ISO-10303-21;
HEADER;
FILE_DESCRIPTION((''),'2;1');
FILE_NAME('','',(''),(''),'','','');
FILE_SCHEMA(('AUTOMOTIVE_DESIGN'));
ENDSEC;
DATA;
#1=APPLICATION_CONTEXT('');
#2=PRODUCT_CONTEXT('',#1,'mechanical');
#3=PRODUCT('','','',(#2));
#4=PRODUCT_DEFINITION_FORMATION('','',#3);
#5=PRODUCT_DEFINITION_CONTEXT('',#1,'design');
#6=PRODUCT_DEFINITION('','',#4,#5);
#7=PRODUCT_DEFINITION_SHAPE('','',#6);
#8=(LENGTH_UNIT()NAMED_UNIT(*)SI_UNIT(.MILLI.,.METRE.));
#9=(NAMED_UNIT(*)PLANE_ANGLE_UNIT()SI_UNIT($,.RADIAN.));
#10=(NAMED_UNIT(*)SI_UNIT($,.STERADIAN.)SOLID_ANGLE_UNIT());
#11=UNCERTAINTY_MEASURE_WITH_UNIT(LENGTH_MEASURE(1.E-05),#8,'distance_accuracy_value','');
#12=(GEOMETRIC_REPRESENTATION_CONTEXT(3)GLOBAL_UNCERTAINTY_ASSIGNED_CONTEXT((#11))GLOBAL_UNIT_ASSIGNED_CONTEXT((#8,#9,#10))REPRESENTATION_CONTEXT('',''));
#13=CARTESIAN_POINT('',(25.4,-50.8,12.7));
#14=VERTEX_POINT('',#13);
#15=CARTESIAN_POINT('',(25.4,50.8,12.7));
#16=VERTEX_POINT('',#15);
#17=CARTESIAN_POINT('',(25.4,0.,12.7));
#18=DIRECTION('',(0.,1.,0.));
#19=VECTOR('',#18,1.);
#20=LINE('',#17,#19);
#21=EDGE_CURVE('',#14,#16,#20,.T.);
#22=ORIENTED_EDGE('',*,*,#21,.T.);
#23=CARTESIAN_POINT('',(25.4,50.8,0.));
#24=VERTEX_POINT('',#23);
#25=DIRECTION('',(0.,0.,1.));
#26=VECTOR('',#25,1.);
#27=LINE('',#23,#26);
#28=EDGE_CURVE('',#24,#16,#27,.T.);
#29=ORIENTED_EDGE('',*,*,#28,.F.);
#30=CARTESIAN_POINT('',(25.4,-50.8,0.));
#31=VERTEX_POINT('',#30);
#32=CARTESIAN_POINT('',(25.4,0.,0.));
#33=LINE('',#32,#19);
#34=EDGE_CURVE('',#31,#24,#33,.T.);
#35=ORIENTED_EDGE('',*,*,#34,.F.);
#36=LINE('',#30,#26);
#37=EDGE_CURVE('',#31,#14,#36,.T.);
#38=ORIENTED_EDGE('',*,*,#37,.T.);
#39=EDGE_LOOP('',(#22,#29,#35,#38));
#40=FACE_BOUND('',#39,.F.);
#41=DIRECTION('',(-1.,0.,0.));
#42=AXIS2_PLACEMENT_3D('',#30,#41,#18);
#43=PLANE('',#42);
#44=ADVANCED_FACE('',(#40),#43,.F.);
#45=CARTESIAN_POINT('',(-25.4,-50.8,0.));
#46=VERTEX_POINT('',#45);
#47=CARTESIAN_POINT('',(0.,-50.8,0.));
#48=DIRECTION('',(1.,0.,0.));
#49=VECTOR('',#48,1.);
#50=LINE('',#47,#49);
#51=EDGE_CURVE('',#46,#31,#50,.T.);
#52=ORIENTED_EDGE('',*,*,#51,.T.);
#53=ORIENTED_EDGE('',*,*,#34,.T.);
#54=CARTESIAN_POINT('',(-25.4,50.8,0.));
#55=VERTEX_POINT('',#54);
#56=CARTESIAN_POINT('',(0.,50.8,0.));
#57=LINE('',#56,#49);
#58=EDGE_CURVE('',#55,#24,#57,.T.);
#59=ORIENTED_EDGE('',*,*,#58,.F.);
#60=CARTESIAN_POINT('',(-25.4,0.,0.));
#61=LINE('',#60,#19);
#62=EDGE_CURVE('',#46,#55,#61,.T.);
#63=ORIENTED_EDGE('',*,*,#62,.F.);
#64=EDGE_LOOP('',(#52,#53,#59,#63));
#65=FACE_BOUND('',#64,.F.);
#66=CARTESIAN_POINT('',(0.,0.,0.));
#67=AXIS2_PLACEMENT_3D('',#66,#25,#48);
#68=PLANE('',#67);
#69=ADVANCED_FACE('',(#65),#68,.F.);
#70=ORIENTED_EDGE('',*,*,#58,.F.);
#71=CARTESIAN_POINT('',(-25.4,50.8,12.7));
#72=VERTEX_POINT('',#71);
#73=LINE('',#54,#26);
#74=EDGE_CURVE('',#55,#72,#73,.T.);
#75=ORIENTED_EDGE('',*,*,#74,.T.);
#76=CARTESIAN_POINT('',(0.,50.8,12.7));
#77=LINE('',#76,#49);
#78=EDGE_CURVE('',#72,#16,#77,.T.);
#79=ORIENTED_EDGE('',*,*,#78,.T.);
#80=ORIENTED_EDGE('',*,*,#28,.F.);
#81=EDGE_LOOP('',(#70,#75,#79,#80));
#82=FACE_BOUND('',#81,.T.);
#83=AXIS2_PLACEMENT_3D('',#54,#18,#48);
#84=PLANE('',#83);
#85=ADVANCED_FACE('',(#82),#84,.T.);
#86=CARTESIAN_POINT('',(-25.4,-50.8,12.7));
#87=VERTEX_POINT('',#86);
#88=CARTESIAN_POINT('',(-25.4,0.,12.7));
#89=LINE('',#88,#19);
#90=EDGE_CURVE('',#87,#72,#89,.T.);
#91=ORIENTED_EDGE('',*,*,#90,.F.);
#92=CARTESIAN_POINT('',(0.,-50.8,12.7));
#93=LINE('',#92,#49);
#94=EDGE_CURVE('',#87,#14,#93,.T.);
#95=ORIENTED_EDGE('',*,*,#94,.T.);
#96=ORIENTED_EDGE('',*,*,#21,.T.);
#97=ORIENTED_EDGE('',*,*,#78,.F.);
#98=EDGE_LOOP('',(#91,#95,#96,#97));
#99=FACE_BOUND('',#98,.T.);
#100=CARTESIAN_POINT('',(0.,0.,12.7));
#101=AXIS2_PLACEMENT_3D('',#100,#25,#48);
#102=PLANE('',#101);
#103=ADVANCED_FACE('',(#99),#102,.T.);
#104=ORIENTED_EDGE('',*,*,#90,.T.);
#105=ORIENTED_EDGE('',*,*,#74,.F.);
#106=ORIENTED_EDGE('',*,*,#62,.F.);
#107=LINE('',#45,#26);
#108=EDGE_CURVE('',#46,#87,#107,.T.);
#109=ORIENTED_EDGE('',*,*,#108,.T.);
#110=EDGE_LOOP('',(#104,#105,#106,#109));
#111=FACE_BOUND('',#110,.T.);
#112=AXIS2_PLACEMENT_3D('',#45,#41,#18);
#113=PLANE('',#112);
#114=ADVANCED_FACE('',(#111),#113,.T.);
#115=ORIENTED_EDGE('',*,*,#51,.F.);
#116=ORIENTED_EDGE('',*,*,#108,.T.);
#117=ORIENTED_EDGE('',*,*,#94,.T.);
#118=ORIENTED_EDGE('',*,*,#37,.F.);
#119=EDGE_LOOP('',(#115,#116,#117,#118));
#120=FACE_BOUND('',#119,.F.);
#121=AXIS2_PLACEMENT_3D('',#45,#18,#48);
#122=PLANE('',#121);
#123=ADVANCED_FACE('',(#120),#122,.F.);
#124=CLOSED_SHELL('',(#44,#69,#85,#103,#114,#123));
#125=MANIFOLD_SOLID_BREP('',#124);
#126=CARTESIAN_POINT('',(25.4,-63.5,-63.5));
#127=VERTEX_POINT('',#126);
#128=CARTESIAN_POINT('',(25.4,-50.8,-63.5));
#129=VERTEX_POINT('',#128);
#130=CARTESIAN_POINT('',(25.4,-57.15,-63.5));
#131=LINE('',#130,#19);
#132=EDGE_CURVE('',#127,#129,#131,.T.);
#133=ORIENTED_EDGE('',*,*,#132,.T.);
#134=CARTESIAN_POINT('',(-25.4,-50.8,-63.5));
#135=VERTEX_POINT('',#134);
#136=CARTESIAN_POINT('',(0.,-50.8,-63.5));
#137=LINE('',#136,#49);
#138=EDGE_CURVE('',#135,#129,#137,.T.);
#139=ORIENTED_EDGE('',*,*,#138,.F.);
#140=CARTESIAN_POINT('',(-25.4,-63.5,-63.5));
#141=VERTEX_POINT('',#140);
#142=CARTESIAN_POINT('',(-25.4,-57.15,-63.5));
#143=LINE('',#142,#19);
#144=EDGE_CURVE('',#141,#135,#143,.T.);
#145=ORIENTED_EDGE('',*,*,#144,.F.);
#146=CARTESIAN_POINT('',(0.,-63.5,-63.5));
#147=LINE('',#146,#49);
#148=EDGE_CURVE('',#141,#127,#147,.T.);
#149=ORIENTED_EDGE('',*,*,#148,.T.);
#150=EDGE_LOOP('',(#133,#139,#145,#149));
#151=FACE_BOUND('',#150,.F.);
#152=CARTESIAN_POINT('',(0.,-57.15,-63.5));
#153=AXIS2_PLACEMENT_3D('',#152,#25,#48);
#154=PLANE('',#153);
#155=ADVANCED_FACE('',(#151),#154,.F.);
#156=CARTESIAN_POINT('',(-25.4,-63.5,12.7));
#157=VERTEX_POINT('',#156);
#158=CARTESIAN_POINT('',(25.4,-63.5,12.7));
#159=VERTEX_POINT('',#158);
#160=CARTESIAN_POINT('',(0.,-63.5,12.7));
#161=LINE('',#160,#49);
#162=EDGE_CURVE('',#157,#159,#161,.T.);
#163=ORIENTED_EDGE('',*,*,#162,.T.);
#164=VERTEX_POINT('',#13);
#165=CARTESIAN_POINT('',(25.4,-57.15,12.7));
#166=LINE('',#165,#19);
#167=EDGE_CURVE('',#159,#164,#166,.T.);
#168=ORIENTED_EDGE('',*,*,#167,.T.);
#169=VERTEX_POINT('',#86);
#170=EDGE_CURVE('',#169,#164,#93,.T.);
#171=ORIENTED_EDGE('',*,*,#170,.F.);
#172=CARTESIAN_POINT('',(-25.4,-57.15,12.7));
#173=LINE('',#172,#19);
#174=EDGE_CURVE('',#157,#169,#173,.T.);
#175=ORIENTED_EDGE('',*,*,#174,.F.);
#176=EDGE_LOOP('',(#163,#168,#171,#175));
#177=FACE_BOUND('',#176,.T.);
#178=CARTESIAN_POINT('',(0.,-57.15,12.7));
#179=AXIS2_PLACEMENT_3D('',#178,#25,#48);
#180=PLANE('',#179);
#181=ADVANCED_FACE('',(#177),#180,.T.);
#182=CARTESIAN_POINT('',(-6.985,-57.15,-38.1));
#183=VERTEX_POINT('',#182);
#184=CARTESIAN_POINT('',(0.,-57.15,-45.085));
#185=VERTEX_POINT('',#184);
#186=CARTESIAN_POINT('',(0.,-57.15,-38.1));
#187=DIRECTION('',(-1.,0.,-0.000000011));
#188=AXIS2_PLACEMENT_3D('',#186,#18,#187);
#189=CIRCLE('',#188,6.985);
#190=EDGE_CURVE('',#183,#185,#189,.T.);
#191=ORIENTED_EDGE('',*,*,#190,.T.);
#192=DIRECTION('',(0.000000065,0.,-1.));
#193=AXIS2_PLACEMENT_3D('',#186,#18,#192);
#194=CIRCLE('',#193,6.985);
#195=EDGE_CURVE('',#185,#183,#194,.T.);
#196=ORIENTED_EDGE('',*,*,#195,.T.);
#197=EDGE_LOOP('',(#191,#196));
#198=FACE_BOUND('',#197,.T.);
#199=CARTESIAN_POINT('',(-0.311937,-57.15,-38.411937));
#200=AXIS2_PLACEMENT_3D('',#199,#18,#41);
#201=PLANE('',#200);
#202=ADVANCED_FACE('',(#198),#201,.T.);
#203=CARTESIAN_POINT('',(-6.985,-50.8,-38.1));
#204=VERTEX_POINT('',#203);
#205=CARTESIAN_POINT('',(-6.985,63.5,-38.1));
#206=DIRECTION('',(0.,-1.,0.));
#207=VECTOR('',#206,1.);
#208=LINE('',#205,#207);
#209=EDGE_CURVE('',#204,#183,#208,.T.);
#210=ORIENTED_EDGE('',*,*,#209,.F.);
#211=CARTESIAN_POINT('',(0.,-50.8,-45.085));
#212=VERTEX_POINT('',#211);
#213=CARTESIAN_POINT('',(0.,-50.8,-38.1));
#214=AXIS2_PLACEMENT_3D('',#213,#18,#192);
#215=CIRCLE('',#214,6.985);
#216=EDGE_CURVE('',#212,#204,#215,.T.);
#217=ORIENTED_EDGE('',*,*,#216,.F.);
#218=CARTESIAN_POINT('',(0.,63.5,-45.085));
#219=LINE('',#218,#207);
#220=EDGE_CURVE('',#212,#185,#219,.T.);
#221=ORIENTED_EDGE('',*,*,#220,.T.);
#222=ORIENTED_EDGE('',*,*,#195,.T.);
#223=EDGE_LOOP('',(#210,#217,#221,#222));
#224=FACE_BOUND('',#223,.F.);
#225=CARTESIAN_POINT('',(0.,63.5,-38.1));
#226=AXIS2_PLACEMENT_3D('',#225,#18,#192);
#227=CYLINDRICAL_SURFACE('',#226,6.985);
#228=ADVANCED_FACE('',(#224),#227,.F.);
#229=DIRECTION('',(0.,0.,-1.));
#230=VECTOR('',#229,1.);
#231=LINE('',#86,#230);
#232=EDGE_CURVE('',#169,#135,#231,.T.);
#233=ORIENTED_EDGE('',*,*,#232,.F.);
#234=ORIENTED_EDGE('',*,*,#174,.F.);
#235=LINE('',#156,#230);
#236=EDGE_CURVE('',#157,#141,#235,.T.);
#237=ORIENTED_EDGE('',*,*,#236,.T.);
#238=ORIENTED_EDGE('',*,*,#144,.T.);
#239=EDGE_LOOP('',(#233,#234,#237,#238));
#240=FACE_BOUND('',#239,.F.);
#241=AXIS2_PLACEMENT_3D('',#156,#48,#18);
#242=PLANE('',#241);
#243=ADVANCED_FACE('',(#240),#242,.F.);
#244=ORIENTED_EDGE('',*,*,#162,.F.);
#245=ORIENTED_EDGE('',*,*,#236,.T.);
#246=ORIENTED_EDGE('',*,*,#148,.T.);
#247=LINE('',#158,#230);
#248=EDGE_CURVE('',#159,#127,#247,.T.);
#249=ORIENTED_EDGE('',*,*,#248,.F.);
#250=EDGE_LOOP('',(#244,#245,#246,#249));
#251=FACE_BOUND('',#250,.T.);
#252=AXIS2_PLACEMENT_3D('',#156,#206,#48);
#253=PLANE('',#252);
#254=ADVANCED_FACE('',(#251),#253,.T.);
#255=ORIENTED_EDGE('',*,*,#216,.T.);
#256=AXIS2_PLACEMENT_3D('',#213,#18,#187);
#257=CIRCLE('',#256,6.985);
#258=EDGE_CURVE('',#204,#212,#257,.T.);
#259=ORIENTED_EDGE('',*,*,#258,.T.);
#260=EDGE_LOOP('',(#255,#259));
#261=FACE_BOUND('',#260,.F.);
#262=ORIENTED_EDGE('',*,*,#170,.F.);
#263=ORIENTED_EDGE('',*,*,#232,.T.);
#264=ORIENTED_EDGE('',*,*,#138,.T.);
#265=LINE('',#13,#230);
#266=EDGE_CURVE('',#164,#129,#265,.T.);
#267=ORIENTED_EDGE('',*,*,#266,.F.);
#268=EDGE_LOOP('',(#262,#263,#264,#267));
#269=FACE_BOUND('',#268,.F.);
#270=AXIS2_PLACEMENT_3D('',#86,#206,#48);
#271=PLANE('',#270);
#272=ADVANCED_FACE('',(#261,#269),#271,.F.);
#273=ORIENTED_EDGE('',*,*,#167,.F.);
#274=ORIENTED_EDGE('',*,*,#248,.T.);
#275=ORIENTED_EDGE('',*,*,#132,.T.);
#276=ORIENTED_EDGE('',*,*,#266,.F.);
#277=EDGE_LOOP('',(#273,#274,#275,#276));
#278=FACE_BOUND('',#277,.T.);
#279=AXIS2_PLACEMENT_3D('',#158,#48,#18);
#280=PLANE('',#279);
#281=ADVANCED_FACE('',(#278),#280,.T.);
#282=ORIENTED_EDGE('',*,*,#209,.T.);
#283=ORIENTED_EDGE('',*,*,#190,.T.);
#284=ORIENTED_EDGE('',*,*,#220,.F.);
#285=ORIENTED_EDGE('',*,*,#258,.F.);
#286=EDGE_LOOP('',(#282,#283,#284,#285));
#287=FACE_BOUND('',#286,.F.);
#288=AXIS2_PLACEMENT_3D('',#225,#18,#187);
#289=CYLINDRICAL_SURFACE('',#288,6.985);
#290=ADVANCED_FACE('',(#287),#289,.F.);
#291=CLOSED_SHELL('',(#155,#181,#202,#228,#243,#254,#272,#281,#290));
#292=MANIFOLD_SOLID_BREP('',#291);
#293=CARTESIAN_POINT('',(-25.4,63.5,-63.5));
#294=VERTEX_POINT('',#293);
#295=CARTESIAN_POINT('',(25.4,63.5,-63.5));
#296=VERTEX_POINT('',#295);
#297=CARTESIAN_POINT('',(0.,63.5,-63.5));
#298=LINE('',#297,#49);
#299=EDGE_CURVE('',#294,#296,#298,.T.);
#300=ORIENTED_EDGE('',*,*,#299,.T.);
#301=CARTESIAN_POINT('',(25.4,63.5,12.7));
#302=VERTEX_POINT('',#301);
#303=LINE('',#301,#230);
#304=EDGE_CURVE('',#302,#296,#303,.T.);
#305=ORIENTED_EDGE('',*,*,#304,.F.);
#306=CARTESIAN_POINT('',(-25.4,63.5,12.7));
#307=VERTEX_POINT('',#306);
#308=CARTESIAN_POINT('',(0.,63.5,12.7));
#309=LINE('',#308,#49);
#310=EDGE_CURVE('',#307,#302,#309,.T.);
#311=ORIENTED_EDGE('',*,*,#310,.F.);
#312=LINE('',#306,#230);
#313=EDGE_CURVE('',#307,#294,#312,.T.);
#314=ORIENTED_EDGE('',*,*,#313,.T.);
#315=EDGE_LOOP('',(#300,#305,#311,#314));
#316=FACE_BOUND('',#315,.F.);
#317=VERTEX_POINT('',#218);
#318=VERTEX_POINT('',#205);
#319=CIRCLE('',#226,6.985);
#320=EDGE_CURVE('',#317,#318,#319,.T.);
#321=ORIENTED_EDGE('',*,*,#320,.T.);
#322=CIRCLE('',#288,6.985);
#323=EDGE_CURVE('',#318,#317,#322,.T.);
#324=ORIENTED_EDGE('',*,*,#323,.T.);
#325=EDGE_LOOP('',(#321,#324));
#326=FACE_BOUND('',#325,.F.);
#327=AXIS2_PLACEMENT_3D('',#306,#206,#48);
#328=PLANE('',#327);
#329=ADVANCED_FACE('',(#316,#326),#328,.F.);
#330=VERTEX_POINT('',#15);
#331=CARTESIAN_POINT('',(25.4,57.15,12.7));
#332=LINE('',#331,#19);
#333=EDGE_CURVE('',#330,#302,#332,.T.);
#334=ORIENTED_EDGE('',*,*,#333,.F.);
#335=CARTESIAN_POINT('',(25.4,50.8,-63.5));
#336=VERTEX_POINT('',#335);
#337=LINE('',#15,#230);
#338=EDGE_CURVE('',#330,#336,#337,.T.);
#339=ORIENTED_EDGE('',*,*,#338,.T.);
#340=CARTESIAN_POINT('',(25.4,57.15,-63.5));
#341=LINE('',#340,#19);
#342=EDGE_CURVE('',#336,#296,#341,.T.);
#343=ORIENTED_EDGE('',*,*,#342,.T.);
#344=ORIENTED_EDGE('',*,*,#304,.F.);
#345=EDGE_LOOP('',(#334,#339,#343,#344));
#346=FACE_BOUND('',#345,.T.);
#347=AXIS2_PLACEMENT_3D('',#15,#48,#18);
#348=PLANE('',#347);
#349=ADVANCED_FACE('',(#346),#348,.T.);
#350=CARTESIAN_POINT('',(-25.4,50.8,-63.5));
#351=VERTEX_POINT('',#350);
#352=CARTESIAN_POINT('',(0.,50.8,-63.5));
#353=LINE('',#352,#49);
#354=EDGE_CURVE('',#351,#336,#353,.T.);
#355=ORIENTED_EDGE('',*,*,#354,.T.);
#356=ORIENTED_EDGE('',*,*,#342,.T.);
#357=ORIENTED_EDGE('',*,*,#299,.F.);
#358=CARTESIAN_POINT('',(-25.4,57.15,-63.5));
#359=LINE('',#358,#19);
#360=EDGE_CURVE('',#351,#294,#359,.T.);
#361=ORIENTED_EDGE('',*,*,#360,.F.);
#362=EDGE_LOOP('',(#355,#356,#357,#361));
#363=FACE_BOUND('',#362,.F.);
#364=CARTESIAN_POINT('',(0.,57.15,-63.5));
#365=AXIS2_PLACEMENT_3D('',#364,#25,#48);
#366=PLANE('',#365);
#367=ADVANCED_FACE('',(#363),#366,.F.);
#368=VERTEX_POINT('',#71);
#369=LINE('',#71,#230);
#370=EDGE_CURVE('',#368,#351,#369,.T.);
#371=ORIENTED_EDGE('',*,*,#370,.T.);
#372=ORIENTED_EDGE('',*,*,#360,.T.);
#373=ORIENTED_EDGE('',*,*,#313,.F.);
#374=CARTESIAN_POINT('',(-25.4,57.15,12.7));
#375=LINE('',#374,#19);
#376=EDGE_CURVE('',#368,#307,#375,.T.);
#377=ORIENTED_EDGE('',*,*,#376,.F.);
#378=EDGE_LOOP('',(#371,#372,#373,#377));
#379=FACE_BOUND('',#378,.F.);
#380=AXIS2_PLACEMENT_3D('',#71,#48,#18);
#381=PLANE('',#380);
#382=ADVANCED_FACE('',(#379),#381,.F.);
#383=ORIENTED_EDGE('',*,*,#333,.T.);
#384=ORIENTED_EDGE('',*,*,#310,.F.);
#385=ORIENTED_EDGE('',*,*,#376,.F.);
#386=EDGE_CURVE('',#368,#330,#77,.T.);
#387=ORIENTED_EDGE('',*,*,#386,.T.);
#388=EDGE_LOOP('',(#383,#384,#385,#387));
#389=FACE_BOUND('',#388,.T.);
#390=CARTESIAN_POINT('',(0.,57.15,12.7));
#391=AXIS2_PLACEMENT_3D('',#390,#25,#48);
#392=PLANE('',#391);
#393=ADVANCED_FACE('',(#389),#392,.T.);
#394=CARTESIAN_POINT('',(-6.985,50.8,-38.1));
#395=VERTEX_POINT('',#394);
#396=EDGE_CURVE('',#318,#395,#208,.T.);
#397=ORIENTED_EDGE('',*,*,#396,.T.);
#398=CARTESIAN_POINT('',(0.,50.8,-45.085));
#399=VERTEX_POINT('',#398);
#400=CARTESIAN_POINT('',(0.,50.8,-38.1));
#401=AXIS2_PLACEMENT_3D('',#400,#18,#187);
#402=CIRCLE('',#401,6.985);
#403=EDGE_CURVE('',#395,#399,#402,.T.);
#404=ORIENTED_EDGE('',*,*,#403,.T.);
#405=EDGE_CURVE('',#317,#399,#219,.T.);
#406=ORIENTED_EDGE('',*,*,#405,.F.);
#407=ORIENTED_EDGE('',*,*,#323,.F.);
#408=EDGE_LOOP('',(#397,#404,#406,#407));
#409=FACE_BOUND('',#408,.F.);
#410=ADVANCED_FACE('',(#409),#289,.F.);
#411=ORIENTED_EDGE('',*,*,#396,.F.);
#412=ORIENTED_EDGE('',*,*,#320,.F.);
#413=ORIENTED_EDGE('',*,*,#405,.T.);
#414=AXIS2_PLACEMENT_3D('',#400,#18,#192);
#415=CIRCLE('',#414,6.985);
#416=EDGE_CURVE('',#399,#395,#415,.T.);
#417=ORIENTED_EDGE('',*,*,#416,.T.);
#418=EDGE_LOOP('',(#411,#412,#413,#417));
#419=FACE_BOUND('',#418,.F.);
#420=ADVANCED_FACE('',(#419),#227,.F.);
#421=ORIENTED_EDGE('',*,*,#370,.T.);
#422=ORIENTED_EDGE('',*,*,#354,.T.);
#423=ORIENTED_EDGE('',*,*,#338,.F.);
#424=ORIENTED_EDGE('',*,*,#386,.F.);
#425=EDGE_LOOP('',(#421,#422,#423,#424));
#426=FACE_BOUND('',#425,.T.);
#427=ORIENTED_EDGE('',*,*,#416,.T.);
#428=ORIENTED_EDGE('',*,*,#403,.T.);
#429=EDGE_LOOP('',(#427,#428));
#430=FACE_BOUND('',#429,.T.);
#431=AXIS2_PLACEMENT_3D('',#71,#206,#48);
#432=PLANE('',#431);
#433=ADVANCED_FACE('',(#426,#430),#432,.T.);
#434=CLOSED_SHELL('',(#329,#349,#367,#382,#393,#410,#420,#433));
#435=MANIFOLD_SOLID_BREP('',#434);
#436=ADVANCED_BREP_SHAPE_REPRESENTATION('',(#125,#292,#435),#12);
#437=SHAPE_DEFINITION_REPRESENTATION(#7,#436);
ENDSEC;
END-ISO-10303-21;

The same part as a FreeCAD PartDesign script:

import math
import FreeCAD as App
import Part
import Sketcher
from FreeCAD import Vector
Q = App.Units.Quantity

doc = App.newDocument("Part")
body = doc.addObject("PartDesign::Body", "Body")

# Sketch on XY plane
sketch1 = body.newObject("Sketcher::SketchObject", "Sketch")
sketch1.AttachmentSupport = (doc.getObject("XY_Plane"), [""])
sketch1.MapMode = "FlatFace"
sketch1.addGeometry(Part.LineSegment(Vector(-25, 51, 0), Vector(-25, -51, 0)), False)
sketch1.addGeometry(Part.LineSegment(Vector(-25, -51, 0), Vector(25, -51, 0)), False)
sketch1.addGeometry(Part.LineSegment(Vector(25, -51, 0), Vector(25, 51, 0)), False)
sketch1.addGeometry(Part.LineSegment(Vector(25, 51, 0), Vector(-25, 51, 0)), False)
sketch1.addConstraint(Sketcher.Constraint("Coincident", 0, 2, 1, 1))
sketch1.addConstraint(Sketcher.Constraint("Coincident", 1, 2, 2, 1))
sketch1.addConstraint(Sketcher.Constraint("Coincident", 2, 2, 3, 1))
sketch1.addConstraint(Sketcher.Constraint("Coincident", 3, 2, 0, 1))
sketch1.addConstraint(Sketcher.Constraint("Vertical", 0))
sketch1.addConstraint(Sketcher.Constraint("Horizontal", 1))
sketch1.addConstraint(Sketcher.Constraint("Vertical", 2))
sketch1.addConstraint(Sketcher.Constraint("Horizontal", 3))
sketch1.addConstraint(Sketcher.Constraint("Symmetric", 0, 2, 2, 2, -1, 1))
sketch1.addConstraint(Sketcher.Constraint("DistanceX", 1, 1, 1, 2, Q("2 in")))
sketch1.addConstraint(Sketcher.Constraint("DistanceY", 0, 2, 0, 1, Q("4 in")))
pad1 = body.newObject("PartDesign::Pad", "Pad")
pad1.Profile = sketch1
pad1.Length = Q("0.5 in")
body2 = doc.addObject("PartDesign::Body", "Body001")
body2.AllowCompound = True

# Sketch on XY plane
sketch2 = body2.newObject("Sketcher::SketchObject", "Sketch001")
sketch2.AttachmentSupport = (doc.getObject("XY_Plane001"), [""])
sketch2.MapMode = "FlatFace"
sketch2.AttachmentOffset = App.Placement(Vector(0, 0, 0.5 * 25.4), App.Rotation())
sketch2.addGeometry(Part.LineSegment(Vector(-25, 64, 0), Vector(-25, 51, 0)), False)
sketch2.addGeometry(Part.LineSegment(Vector(-25, 51, 0), Vector(25, 51, 0)), False)
sketch2.addGeometry(Part.LineSegment(Vector(25, 51, 0), Vector(25, 64, 0)), False)
sketch2.addGeometry(Part.LineSegment(Vector(25, 64, 0), Vector(-25, 64, 0)), False)
sketch2.addGeometry(Part.LineSegment(Vector(-25, -51, 0), Vector(-25, -64, 0)), False)
sketch2.addGeometry(Part.LineSegment(Vector(-25, -64, 0), Vector(25, -64, 0)), False)
sketch2.addGeometry(Part.LineSegment(Vector(25, -64, 0), Vector(25, -51, 0)), False)
sketch2.addGeometry(Part.LineSegment(Vector(25, -51, 0), Vector(-25, -51, 0)), False)
sketch2.addConstraint(Sketcher.Constraint("Coincident", 0, 2, 1, 1))
sketch2.addConstraint(Sketcher.Constraint("Coincident", 1, 2, 2, 1))
sketch2.addConstraint(Sketcher.Constraint("Coincident", 2, 2, 3, 1))
sketch2.addConstraint(Sketcher.Constraint("Coincident", 3, 2, 0, 1))
sketch2.addConstraint(Sketcher.Constraint("Coincident", 4, 2, 5, 1))
sketch2.addConstraint(Sketcher.Constraint("Coincident", 5, 2, 6, 1))
sketch2.addConstraint(Sketcher.Constraint("Coincident", 6, 2, 7, 1))
sketch2.addConstraint(Sketcher.Constraint("Coincident", 7, 2, 4, 1))
sketch2.addConstraint(Sketcher.Constraint("Vertical", 0))
sketch2.addConstraint(Sketcher.Constraint("Horizontal", 1))
sketch2.addConstraint(Sketcher.Constraint("Vertical", 2))
sketch2.addConstraint(Sketcher.Constraint("Horizontal", 3))
sketch2.addConstraint(Sketcher.Constraint("Vertical", 4))
sketch2.addConstraint(Sketcher.Constraint("Horizontal", 5))
sketch2.addConstraint(Sketcher.Constraint("Vertical", 6))
sketch2.addConstraint(Sketcher.Constraint("Horizontal", 7))
sketch2.addConstraint(Sketcher.Constraint("Symmetric", 2, 2, 4, 2, -1, 1))
sketch2.addConstraint(Sketcher.Constraint("Symmetric", 0, 2, 6, 2, -1, 1))
sketch2.addConstraint(Sketcher.Constraint("Vertical", 3, 2, 4, 2))
sketch2.addConstraint(Sketcher.Constraint("DistanceX", 1, 1, 1, 2, Q("2 in")))
sketch2.addConstraint(Sketcher.Constraint("DistanceY", 0, 2, 0, 1, Q("0.5 in")))
sketch2.addConstraint(Sketcher.Constraint("DistanceY", -1, 1, 0, 2, Q("2 in")))
pad2 = body2.newObject("PartDesign::Pad", "Pad001")
pad2.Profile = sketch2
pad2.Length = Q("3 in")
pad2.Reversed = True

# Sketch on XZ plane
sketch3 = body2.newObject("Sketcher::SketchObject", "Sketch002")
sketch3.AttachmentSupport = (doc.getObject("XZ_Plane001"), [""])
sketch3.MapMode = "FlatFace"
sketch3.AttachmentOffset = App.Placement(Vector(0, 0, -2.5 * 25.4), App.Rotation())
sketch3.addGeometry(Part.ArcOfCircle(Part.Circle(Vector(0, -38, 0), Vector(0, 0, 1), 7), math.radians(180), math.radians(270)), False)
sketch3.addGeometry(Part.ArcOfCircle(Part.Circle(Vector(0, -38, 0), Vector(0, 0, 1), 7), math.radians(-90), math.radians(180)), False)
sketch3.addConstraint(Sketcher.Constraint("Tangent", 0, 1, 1, 2))
sketch3.addConstraint(Sketcher.Constraint("Coincident", 1, 1, 0, 2))
sketch3.addConstraint(Sketcher.Constraint("PointOnObject", 0, 3, -2))
sketch3.addConstraint(Sketcher.Constraint("PointOnObject", 1, 1, -2))
sketch3.addConstraint(Sketcher.Constraint("Horizontal", 1, 3, 0, 1))
sketch3.addConstraint(Sketcher.Constraint("Radius", 0, Q("0.275 in")))
sketch3.addConstraint(Sketcher.Constraint("DistanceY", 0, 3, -1, 1, Q("1.5 in")))
pocket1 = body2.newObject("PartDesign::Pocket", "Pocket")
pocket1.Profile = sketch3
pocket1.Length = Q("4.75 in")
pocket1.Reversed = True

doc.recompute()
